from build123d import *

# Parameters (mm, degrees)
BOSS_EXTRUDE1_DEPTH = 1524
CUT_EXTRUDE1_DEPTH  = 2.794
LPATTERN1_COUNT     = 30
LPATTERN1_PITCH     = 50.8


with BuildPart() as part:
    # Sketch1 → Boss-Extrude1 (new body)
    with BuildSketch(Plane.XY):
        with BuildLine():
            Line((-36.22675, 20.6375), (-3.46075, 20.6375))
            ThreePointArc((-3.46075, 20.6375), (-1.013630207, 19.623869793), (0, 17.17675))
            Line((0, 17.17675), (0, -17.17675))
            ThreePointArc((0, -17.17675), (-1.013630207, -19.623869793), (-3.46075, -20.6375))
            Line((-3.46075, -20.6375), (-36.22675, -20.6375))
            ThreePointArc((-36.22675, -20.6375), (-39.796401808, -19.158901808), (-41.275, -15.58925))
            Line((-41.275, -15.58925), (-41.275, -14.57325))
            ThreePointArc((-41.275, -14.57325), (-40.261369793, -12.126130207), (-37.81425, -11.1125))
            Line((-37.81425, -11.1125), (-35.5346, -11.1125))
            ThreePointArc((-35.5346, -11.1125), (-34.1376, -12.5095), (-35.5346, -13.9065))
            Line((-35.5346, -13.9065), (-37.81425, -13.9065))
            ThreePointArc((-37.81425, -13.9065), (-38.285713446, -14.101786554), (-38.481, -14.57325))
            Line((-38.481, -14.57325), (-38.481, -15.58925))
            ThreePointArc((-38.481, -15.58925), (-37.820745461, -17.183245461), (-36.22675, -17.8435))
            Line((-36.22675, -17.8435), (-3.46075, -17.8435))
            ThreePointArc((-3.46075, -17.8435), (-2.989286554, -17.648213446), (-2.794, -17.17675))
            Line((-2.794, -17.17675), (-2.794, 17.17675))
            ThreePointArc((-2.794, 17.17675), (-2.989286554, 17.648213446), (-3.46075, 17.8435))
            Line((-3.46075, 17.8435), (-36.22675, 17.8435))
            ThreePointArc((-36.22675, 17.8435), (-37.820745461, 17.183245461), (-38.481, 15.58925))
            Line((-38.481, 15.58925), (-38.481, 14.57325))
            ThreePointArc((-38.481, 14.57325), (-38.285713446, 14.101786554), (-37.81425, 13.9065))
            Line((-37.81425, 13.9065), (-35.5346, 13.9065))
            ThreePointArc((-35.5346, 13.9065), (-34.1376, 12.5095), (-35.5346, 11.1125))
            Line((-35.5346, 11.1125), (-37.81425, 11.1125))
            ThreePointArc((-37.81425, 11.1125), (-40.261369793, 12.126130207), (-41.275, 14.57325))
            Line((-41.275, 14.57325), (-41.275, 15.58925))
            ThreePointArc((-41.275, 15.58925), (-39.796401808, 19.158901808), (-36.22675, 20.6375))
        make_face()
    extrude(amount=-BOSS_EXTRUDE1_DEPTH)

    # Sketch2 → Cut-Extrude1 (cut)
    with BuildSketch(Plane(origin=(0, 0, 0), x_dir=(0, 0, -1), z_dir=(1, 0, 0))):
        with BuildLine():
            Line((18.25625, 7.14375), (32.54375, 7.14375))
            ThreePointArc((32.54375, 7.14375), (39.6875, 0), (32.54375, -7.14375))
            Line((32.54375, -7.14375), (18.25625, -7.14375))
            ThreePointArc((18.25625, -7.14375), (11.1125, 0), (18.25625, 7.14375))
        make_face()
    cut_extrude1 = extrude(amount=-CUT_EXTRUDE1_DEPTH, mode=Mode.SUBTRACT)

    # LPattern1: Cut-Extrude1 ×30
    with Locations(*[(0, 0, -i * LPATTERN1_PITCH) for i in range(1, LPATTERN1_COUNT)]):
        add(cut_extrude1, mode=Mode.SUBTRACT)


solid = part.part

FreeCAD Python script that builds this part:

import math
import FreeCAD as App
import Part
import Sketcher
Q = App.Units.Quantity

doc = App.newDocument("Part")
body = doc.addObject("PartDesign::Body", "Body")

sketch1 = doc.addObject("Sketcher::SketchObject", "Sketch")
body.addObject(sketch1)
sketch1.AttachmentSupport = (doc.XY_Plane, [""])
sketch1.MapMode = "FlatFace"
sketch1.addGeometry(Part.LineSegment(App.Vector(-3.5, 20.6, 0), App.Vector(-36.2, 20.6, 0)), False)
sketch1.addGeometry(Part.ArcOfCircle(Part.Circle(App.Vector(-36.2, 15.6, 0), App.Vector(0, 0, 1), 5), math.radians(90), math.radians(180)), False)
sketch1.addGeometry(Part.LineSegment(App.Vector(-41.3, 15.6, 0), App.Vector(-41.3, 14.6, 0)), False)
sketch1.addGeometry(Part.ArcOfCircle(Part.Circle(App.Vector(-37.8, 14.6, 0), App.Vector(0, 0, 1), 3.5), math.radians(180), math.radians(270)), False)
sketch1.addGeometry(Part.LineSegment(App.Vector(-37.8, 11.1, 0), App.Vector(-35.5, 11.1, 0)), False)
sketch1.addGeometry(Part.ArcOfCircle(Part.Circle(App.Vector(-35.5, 12.5, 0), App.Vector(0, 0, 1), 1.4), math.radians(-90), math.radians(90)), False)
sketch1.addGeometry(Part.LineSegment(App.Vector(-35.5, 13.9, 0), App.Vector(-37.8, 13.9, 0)), False)
sketch1.addGeometry(Part.ArcOfCircle(Part.Circle(App.Vector(-37.8, 14.6, 0), App.Vector(0, 0, 1), 0.7), math.radians(-180), math.radians(-90)), False)
sketch1.addGeometry(Part.LineSegment(App.Vector(-38.5, 14.6, 0), App.Vector(-38.5, 15.6, 0)), False)
sketch1.addGeometry(Part.ArcOfCircle(Part.Circle(App.Vector(-36.2, 15.6, 0), App.Vector(0, 0, 1), 2.3), math.radians(90), math.radians(180)), False)
sketch1.addGeometry(Part.LineSegment(App.Vector(-36.2, 17.8, 0), App.Vector(-3.5, 17.8, 0)), False)
sketch1.addGeometry(Part.ArcOfCircle(Part.Circle(App.Vector(-3.5, 17.2, 0), App.Vector(0, 0, 1), 0.7), math.radians(0), math.radians(90)), False)
sketch1.addGeometry(Part.LineSegment(App.Vector(-2.8, 17.2, 0), App.Vector(-2.8, -17.2, 0)), False)
sketch1.addGeometry(Part.ArcOfCircle(Part.Circle(App.Vector(-3.5, -17.2, 0), App.Vector(0, 0, 1), 0.7), math.radians(-90), math.radians(0)), False)
sketch1.addGeometry(Part.LineSegment(App.Vector(-3.5, -17.8, 0), App.Vector(-36.2, -17.8, 0)), False)
sketch1.addGeometry(Part.ArcOfCircle(Part.Circle(App.Vector(-36.2, -15.6, 0), App.Vector(0, 0, 1), 2.3), math.radians(-180), math.radians(-90)), False)
sketch1.addGeometry(Part.LineSegment(App.Vector(-38.5, -15.6, 0), App.Vector(-38.5, -14.6, 0)), False)
sketch1.addGeometry(Part.ArcOfCircle(Part.Circle(App.Vector(-37.8, -14.6, 0), App.Vector(0, 0, 1), 0.7), math.radians(90), math.radians(180)), False)
sketch1.addGeometry(Part.LineSegment(App.Vector(-37.8, -13.9, 0), App.Vector(-35.5, -13.9, 0)), False)
sketch1.addGeometry(Part.ArcOfCircle(Part.Circle(App.Vector(-35.5, -12.5, 0), App.Vector(0, 0, 1), 1.4), math.radians(-90), math.radians(90)), False)
sketch1.addGeometry(Part.LineSegment(App.Vector(-35.5, -11.1, 0), App.Vector(-37.8, -11.1, 0)), False)
sketch1.addGeometry(Part.ArcOfCircle(Part.Circle(App.Vector(-37.8, -14.6, 0), App.Vector(0, 0, 1), 3.5), math.radians(90), math.radians(180)), False)
sketch1.addGeometry(Part.LineSegment(App.Vector(-41.3, -14.6, 0), App.Vector(-41.3, -15.6, 0)), False)
sketch1.addGeometry(Part.ArcOfCircle(Part.Circle(App.Vector(-36.2, -15.6, 0), App.Vector(0, 0, 1), 5), math.radians(180), math.radians(270)), False)
sketch1.addGeometry(Part.LineSegment(App.Vector(-36.2, -20.6, 0), App.Vector(-3.5, -20.6, 0)), False)
sketch1.addGeometry(Part.ArcOfCircle(Part.Circle(App.Vector(-3.5, -17.2, 0), App.Vector(0, 0, 1), 3.5), math.radians(-90), math.radians(0)), False)
sketch1.addGeometry(Part.LineSegment(App.Vector(0, -17.2, 0), App.Vector(0, 17.2, 0)), False)
sketch1.addGeometry(Part.ArcOfCircle(Part.Circle(App.Vector(-3.5, 17.2, 0), App.Vector(0, 0, 1), 3.5), math.radians(0), math.radians(90)), False)
sketch1.addConstraint(Sketcher.Constraint("Tangent", 0, 2, 1, 1))
sketch1.addConstraint(Sketcher.Constraint("Tangent", 1, 2, 2, 1))
sketch1.addConstraint(Sketcher.Constraint("Tangent", 2, 2, 3, 1))
sketch1.addConstraint(Sketcher.Constraint("Tangent", 3, 2, 4, 1))
sketch1.addConstraint(Sketcher.Constraint("Tangent", 4, 2, 5, 1))
sketch1.addConstraint(Sketcher.Constraint("Tangent", 5, 2, 6, 1))
sketch1.addConstraint(Sketcher.Constraint("Tangent", 6, 2, 7, 2))
sketch1.addConstraint(Sketcher.Constraint("Tangent", 7, 1, 8, 1))
sketch1.addConstraint(Sketcher.Constraint("Tangent", 8, 2, 9, 2))
sketch1.addConstraint(Sketcher.Constraint("Tangent", 9, 1, 10, 1))
sketch1.addConstraint(Sketcher.Constraint("Tangent", 10, 2, 11, 2))
sketch1.addConstraint(Sketcher.Constraint("Tangent", 11, 1, 12, 1))
sketch1.addConstraint(Sketcher.Constraint("Tangent", 12, 2, 13, 2))
sketch1.addConstraint(Sketcher.Constraint("Tangent", 13, 1, 14, 1))
sketch1.addConstraint(Sketcher.Constraint("Tangent", 14, 2, 15, 2))
sketch1.addConstraint(Sketcher.Constraint("Tangent", 15, 1, 16, 1))
sketch1.addConstraint(Sketcher.Constraint("Tangent", 16, 2, 17, 2))
sketch1.addConstraint(Sketcher.Constraint("Tangent", 17, 1, 18, 1))
sketch1.addConstraint(Sketcher.Constraint("Tangent", 18, 2, 19, 1))
sketch1.addConstraint(Sketcher.Constraint("Tangent", 19, 2, 20, 1))
sketch1.addConstraint(Sketcher.Constraint("Tangent", 20, 2, 21, 1))
sketch1.addConstraint(Sketcher.Constraint("Tangent", 21, 2, 22, 1))
sketch1.addConstraint(Sketcher.Constraint("Tangent", 22, 2, 23, 1))
sketch1.addConstraint(Sketcher.Constraint("Tangent", 23, 2, 24, 1))
sketch1.addConstraint(Sketcher.Constraint("Tangent", 24, 2, 25, 1))
sketch1.addConstraint(Sketcher.Constraint("Tangent", 25, 2, 26, 1))
sketch1.addConstraint(Sketcher.Constraint("Tangent", 26, 2, 27, 1))
sketch1.addConstraint(Sketcher.Constraint("Tangent", 27, 2, 0, 1))
sketch1.addConstraint(Sketcher.Constraint("Horizontal", 0))
sketch1.addConstraint(Sketcher.Constraint("Vertical", 2))
sketch1.addConstraint(Sketcher.Constraint("Horizontal", 4))
sketch1.addConstraint(Sketcher.Constraint("Horizontal", 6))
sketch1.addConstraint(Sketcher.Constraint("Vertical", 8))
sketch1.addConstraint(Sketcher.Constraint("Horizontal", 10))
sketch1.addConstraint(Sketcher.Constraint("Vertical", 12))
sketch1.addConstraint(Sketcher.Constraint("Horizontal", 14))
sketch1.addConstraint(Sketcher.Constraint("Vertical", 16))
sketch1.addConstraint(Sketcher.Constraint("Horizontal", 18))
sketch1.addConstraint(Sketcher.Constraint("Horizontal", 20))
sketch1.addConstraint(Sketcher.Constraint("Vertical", 22))
sketch1.addConstraint(Sketcher.Constraint("Horizontal", 24))
sketch1.addConstraint(Sketcher.Constraint("Vertical", 26))
sketch1.addConstraint(Sketcher.Constraint("Coincident", 7, 3, 3, 3))
sketch1.addConstraint(Sketcher.Constraint("Coincident", 9, 3, 1, 3))
sketch1.addConstraint(Sketcher.Constraint("Coincident", 21, 3, 17, 3))
sketch1.addConstraint(Sketcher.Constraint("Coincident", 23, 3, 15, 3))
sketch1.addConstraint(Sketcher.Constraint("Coincident", 25, 3, 13, 3))
sketch1.addConstraint(Sketcher.Constraint("Coincident", 27, 3, 11, 3))
sketch1.addConstraint(Sketcher.Constraint("Equal", 7, 11))
sketch1.addConstraint(Sketcher.Constraint("Equal", 11, 13))
sketch1.addConstraint(Sketcher.Constraint("Equal", 9, 15))
sketch1.addConstraint(Sketcher.Constraint("Equal", 13, 17))
sketch1.addConstraint(Sketcher.Constraint("Symmetric", 25, 2, 26, 2, -1, 1))
sketch1.addConstraint(Sketcher.Constraint("Symmetric", 3, 3, 17, 3, -1))
sketch1.addConstraint(Sketcher.Constraint("Vertical", 5, 3, 19, 3))
sketch1.addConstraint(Sketcher.Constraint("Radius", 5, Q("0.055 in")))
sketch1.addConstraint(Sketcher.Constraint("DistanceX", 0, 2, 0, 1, Q("1.29 in")))
sketch1.addConstraint(Sketcher.Constraint("DistanceY", 2, 2, 2, 1, Q("0.04 in")))
sketch1.addConstraint(Sketcher.Constraint("DistanceY", 13, 3, 9, 3, Q("1.29 in")))
sketch1.addConstraint(Sketcher.Constraint("DistanceY", 5, 3, 0, 2, Q("0.32 in")))
sketch1.addConstraint(Sketcher.Constraint("DistanceY", 12, 2, 12, 1, Q("1.3525 in")))
sketch1.addConstraint(Sketcher.Constraint("DistanceX", 5, 3, -1, 1, Q("1.399 in")))
pad1 = doc.addObject("PartDesign::Pad", "Pad")
body.addObject(pad1)
pad1.Profile = sketch1
pad1.Length = Q("60 in")
pad1.Reversed = True

sketch2 = doc.addObject("Sketcher::SketchObject", "Sketch001")
body.addObject(sketch2)
sketch2.AttachmentSupport = (doc.YZ_Plane, [""])
sketch2.MapMode = "FlatFace"
sketch2.addGeometry(Part.LineSegment(App.Vector(7, -33, 0), App.Vector(7, -18, 0)), False)
sketch2.addGeometry(Part.ArcOfCircle(Part.Circle(App.Vector(0, -18, 0), App.Vector(0, 0, 1), 7), math.radians(0), math.radians(180)), False)
sketch2.addGeometry(Part.LineSegment(App.Vector(-7, -18, 0), App.Vector(-7, -33, 0)), False)
sketch2.addGeometry(Part.ArcOfCircle(Part.Circle(App.Vector(0, -33, 0), App.Vector(0, 0, 1), 7), math.radians(180), math.radians(360)), False)
sketch2.addConstraint(Sketcher.Constraint("Tangent", 0, 2, 1, 1))
sketch2.addConstraint(Sketcher.Constraint("Tangent", 1, 2, 2, 1))
sketch2.addConstraint(Sketcher.Constraint("Tangent", 2, 2, 3, 1))
sketch2.addConstraint(Sketcher.Constraint("Tangent", 3, 2, 0, 1))
sketch2.addConstraint(Sketcher.Constraint("Vertical", 0))
sketch2.addConstraint(Sketcher.Constraint("Vertical", 2))
sketch2.addConstraint(Sketcher.Constraint("PointOnObject", 1, 3, -2))
sketch2.addConstraint(Sketcher.Constraint("Radius", 1, Q("0.28125 in")))
sketch2.addConstraint(Sketcher.Constraint("DistanceY", 0, 1, 0, 2, Q("0.5625 in")))
sketch2.addConstraint(Sketcher.Constraint("DistanceY", 1, 3, -1, 1, Q("0.71875 in")))
pocket1 = doc.addObject("PartDesign::Pocket", "Pocket")
body.addObject(pocket1)
pocket1.Profile = sketch2
pocket1.Length = Q("0.11 in")
doc.recompute()

linearpattern = doc.addObject("PartDesign::LinearPattern", "LinearPattern")
body.addObject(linearpattern)
linearpattern.Originals = [pocket1]
linearpattern.Direction = (doc.Z_Axis, [""])
linearpattern.Mode = "offset"
linearpattern.Offset = Q("2 in")
linearpattern.Occurrences = 30
linearpattern.Reversed = True
body.Tip = linearpattern

doc.recompute()
